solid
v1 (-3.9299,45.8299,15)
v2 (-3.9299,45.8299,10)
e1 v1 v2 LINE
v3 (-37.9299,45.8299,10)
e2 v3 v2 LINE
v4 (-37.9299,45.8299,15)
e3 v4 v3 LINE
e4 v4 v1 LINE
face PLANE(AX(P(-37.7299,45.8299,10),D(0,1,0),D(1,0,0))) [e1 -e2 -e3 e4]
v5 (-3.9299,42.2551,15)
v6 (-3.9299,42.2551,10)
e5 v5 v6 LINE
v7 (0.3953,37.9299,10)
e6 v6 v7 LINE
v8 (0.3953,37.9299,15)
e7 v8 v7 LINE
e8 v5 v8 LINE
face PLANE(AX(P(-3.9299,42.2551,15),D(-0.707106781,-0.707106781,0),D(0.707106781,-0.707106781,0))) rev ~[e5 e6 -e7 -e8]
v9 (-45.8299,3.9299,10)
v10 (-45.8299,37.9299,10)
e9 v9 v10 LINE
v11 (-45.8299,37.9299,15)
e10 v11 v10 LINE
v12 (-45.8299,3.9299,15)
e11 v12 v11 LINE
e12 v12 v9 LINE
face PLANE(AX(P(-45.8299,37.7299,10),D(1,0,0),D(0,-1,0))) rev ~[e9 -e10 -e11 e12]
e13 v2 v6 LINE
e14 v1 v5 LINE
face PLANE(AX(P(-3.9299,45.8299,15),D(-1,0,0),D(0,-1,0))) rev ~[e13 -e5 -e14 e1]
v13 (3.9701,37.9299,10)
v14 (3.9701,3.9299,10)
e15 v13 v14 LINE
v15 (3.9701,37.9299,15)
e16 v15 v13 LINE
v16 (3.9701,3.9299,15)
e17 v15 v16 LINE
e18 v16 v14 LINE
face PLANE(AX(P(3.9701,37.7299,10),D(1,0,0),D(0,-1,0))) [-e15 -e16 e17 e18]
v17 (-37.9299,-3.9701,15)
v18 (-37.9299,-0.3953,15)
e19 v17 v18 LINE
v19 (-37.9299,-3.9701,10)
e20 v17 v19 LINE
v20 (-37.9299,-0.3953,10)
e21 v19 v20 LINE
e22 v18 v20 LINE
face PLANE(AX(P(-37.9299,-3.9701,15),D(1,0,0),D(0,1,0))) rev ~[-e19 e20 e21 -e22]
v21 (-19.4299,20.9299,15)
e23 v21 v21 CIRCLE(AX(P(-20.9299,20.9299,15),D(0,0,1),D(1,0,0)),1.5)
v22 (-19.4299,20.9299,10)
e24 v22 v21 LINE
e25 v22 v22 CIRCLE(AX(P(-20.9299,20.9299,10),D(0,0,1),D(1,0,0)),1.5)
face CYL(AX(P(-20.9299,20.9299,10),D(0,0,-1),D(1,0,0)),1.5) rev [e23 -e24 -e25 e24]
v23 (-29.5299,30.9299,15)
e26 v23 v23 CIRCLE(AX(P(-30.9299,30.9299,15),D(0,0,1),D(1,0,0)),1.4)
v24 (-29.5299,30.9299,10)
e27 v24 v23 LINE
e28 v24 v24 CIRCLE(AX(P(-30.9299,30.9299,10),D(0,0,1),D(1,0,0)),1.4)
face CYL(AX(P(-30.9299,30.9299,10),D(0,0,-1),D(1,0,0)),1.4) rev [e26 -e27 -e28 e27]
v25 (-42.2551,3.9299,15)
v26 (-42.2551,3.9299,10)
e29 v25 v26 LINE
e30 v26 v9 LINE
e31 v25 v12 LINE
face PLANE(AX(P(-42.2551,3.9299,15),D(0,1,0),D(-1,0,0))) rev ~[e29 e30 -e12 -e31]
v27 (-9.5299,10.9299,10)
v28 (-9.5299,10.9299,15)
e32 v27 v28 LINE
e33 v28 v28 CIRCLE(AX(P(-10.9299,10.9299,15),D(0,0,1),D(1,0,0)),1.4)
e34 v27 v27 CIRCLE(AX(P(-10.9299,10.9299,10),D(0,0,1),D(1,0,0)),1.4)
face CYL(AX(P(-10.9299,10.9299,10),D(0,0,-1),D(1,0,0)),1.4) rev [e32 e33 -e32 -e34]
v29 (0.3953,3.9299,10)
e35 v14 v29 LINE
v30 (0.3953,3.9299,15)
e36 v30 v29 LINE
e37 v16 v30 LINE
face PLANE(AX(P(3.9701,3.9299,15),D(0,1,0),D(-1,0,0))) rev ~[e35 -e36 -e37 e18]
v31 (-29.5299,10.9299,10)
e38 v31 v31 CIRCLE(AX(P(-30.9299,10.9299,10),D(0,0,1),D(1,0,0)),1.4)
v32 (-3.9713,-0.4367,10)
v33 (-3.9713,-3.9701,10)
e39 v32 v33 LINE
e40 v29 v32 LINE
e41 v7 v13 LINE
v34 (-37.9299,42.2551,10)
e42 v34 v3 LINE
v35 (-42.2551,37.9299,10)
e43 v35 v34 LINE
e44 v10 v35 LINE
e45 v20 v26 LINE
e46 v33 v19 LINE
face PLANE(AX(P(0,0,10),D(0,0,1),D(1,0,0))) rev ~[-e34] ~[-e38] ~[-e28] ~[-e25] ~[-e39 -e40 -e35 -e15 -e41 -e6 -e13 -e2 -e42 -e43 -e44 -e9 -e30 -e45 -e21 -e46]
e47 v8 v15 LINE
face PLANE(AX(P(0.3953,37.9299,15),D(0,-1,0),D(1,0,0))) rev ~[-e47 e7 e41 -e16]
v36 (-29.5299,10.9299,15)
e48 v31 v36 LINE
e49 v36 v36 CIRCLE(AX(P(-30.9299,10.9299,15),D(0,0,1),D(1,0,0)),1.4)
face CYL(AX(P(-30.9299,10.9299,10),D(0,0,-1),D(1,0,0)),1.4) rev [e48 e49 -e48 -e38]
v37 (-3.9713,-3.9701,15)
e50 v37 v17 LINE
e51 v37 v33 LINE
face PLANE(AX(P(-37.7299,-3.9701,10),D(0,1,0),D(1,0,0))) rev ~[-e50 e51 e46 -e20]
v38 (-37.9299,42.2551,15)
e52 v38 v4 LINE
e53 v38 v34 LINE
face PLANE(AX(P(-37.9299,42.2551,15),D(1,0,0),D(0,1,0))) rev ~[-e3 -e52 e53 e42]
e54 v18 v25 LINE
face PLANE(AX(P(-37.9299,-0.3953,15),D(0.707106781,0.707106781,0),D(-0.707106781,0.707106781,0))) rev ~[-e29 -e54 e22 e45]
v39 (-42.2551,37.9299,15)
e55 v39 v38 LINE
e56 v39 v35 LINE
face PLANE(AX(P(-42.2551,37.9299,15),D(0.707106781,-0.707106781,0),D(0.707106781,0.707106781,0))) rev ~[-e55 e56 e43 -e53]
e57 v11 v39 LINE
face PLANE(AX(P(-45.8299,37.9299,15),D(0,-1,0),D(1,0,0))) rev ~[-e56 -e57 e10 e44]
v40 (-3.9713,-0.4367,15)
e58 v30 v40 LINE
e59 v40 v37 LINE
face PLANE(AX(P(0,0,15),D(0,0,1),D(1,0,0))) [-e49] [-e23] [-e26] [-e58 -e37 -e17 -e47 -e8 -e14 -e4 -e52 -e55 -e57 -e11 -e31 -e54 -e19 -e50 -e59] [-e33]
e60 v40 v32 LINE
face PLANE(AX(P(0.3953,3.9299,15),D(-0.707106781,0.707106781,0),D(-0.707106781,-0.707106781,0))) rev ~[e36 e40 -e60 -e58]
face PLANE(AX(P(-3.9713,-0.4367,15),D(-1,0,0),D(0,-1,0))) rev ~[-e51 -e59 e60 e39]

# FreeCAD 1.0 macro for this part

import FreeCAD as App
import Part
import Sketcher
from FreeCAD import Vector

doc = App.newDocument("Part")
params = doc.addObject("Spreadsheet::Sheet", "Params")
for row, (alias, value) in enumerate([
    ("sketch1_diameter", "3 mm"),
    ("sketch1_diameter2", "2.8 mm"),
    ("sketch1_width", "33.6 mm"),
    ("pad1_length", "5 mm"),
    ("sketch2_width", "0.2 mm"),
    ("pad2_length", "5 mm"),
], start=1):
    params.set(f"A{row}", alias)
    params.set(f"B{row}", "=" + value)
    params.setAlias(f"B{row}", alias)

body = doc.addObject("PartDesign::Body", "Body")

# Sketch on XY plane
sketch1 = body.newObject("Sketcher::SketchObject", "Sketch")
sketch1.AttachmentSupport = (doc.getObject("XY_Plane"), [""])
sketch1.MapMode = "FlatFace"
sketch1.AttachmentOffset = App.Placement(Vector(0, 0, 10), App.Rotation())
sketch1.addGeometry([
    Part.LineSegment(Vector(-4.171, -0.354, 0), Vector(0.312, 4.13, 0)),  # 0
    Part.LineSegment(Vector(0.312, 4.13, 0), Vector(3.97, 4.13, 0)),  # 1
    Part.LineSegment(Vector(3.97, 4.13, 0), Vector(3.97, 37.73, 0)),  # 2
    Part.LineSegment(Vector(3.97, 37.73, 0), Vector(0.312, 37.73, 0)),  # 3
    Part.LineSegment(Vector(0.312, 37.73, 0), Vector(-4.13, 42.172, 0)),  # 4
    Part.LineSegment(Vector(-4.13, 42.172, 0), Vector(-4.13, 45.83, 0)),  # 5
    Part.LineSegment(Vector(-4.13, 45.83, 0), Vector(-37.73, 45.83, 0)),  # 6
    Part.LineSegment(Vector(-37.73, 45.83, 0), Vector(-37.73, 42.172, 0)),  # 7
    Part.LineSegment(Vector(-37.73, 42.172, 0), Vector(-42.172, 37.73, 0)),  # 8
    Part.LineSegment(Vector(-42.172, 37.73, 0), Vector(-45.83, 37.73, 0)),  # 9
    Part.LineSegment(Vector(-45.83, 37.73, 0), Vector(-45.83, 4.13, 0)),  # 10
    Part.LineSegment(Vector(-45.83, 4.13, 0), Vector(-42.172, 4.13, 0)),  # 11
    Part.LineSegment(Vector(-42.172, 4.13, 0), Vector(-37.689, -0.354, 0)),  # 12
    Part.LineSegment(Vector(-37.689, -0.354, 0), Vector(-37.73, -0.354, 0)),  # 13
    Part.LineSegment(Vector(-37.73, -0.354, 0), Vector(-37.73, -3.97, 0)),  # 14
    Part.LineSegment(Vector(-37.73, -3.97, 0), Vector(-4.171, -3.97, 0)),  # 15
    Part.LineSegment(Vector(-4.171, -3.97, 0), Vector(-4.171, -0.354, 0)),  # 16
    Part.Circle(Vector(-30.93, 30.93, 0), Vector(0, 0, 1), 1.4),  # 17
    Part.Circle(Vector(-30.93, 10.93, 0), Vector(0, 0, 1), 1.4),  # 18
    Part.Circle(Vector(-10.93, 10.93, 0), Vector(0, 0, 1), 1.4),  # 19
    Part.Circle(Vector(-20.93, 20.93, 0), Vector(0, 0, 1), 1.5),  # 20
], False)
sketch1.addConstraint([
    Sketcher.Constraint("Coincident", 0, 2, 1, 1),
    Sketcher.Constraint("Coincident", 1, 2, 2, 1),
    Sketcher.Constraint("Coincident", 2, 2, 3, 1),
    Sketcher.Constraint("Coincident", 3, 2, 4, 1),
    Sketcher.Constraint("Coincident", 4, 2, 5, 1),
    Sketcher.Constraint("Coincident", 5, 2, 6, 1),
    Sketcher.Constraint("Coincident", 6, 2, 7, 1),
    Sketcher.Constraint("Coincident", 7, 2, 8, 1),
    Sketcher.Constraint("Coincident", 8, 2, 9, 1),
    Sketcher.Constraint("Coincident", 9, 2, 10, 1),
    Sketcher.Constraint("Coincident", 10, 2, 11, 1),
    Sketcher.Constraint("Coincident", 11, 2, 12, 1),
    Sketcher.Constraint("Coincident", 12, 2, 13, 1),
    Sketcher.Constraint("Coincident", 13, 2, 14, 1),
    Sketcher.Constraint("Coincident", 14, 2, 15, 1),
    Sketcher.Constraint("Coincident", 15, 2, 16, 1),
    Sketcher.Constraint("Coincident", 16, 2, 0, 1),
    Sketcher.Constraint("Horizontal", 1),
    Sketcher.Constraint("Vertical", 2),
    Sketcher.Constraint("Horizontal", 3),
    Sketcher.Constraint("Vertical", 5),
    Sketcher.Constraint("Horizontal", 6),
    Sketcher.Constraint("Vertical", 7),
    Sketcher.Constraint("Horizontal", 9),
    Sketcher.Constraint("Vertical", 10),
    Sketcher.Constraint("Horizontal", 11),
    Sketcher.Constraint("Horizontal", 13),
    Sketcher.Constraint("Vertical", 14),
    Sketcher.Constraint("Horizontal", 15),
    Sketcher.Constraint("Vertical", 16),
    Sketcher.Constraint("Equal", 17, 18),
    Sketcher.Constraint("Equal", 18, 19),
    Sketcher.Constraint("Perpendicular", 0, 4),
    Sketcher.Constraint("Perpendicular", 4, 8),
    Sketcher.Constraint("Perpendicular", 8, 12),
    Sketcher.Constraint("Horizontal", 18, 3, 19, 3),
    Sketcher.Constraint("Horizontal", 4, 2, 7, 2),
    Sketcher.Constraint("Horizontal", 3, 2, 8, 2),
    Sketcher.Constraint("Horizontal", 1, 2, 10, 2),
    Sketcher.Constraint("Horizontal", 13, 2, 16, 2),
    Sketcher.Constraint("Vertical", 17, 3, 18, 3),
    Sketcher.Constraint("Vertical", 0, 2, 3, 2),
    Sketcher.Constraint("Vertical", 8, 2, 11, 2),
    Sketcher.Constraint("Vertical", 7, 2, 13, 2),
    Sketcher.Constraint("Equal", 3, 9),
    Sketcher.Constraint("Equal", 6, 2),
    Sketcher.Constraint("Equal", 11, 5),
    Sketcher.Constraint("Equal", 4, 8),
    Sketcher.Constraint("Diameter", 20, 3.0),
    Sketcher.Constraint("Diameter", 17, 2.8),
    Sketcher.Constraint("DistanceY", 18, 3, 17, 3, 20.0),
    Sketcher.Constraint("DistanceX", 18, 3, 19, 3, 20.0),
    Sketcher.Constraint("DistanceX", 6, 2, 6, 1, 33.6),
    Sketcher.Constraint("DistanceX", 17, 3, 20, 3, 10.0),
    Sketcher.Constraint("DistanceY", 20, 3, 17, 3, 10.0),
    Sketcher.Constraint("DistanceY", 0, 2, 19, 3, 6.8),
    Sketcher.Constraint("DistanceX", 19, 3, 1, 2, 14.9),
    Sketcher.Constraint("DistanceX", 4, 2, 2, 2, 8.1),
    Sketcher.Constraint("DistanceY", 14, 2, 11, 2, 8.1),
    Sketcher.Constraint("DistanceX", 17, 3, -1, 1, 30.93),
    Sketcher.Constraint("DistanceY", -1, 1, 17, 3, 30.93),
    Sketcher.Constraint("Distance", 0, 6.341),
    Sketcher.Constraint("DistanceX", 1, 1, 1, 2, 3.6577),
])
sketch1.setExpression("Constraints[48]", "Params.sketch1_diameter")
sketch1.setExpression("Constraints[49]", "Params.sketch1_diameter2")
sketch1.setExpression("Constraints[52]", "Params.sketch1_width")
pad1 = body.newObject("PartDesign::Pad", "Pad")
pad1.Profile = sketch1
pad1.setExpression("Length", "Params.pad1_length")

# Sketch on XY plane
sketch2 = body.newObject("Sketcher::SketchObject", "Sketch001")
sketch2.AttachmentSupport = (doc.getObject("XY_Plane"), [""])
sketch2.MapMode = "FlatFace"
sketch2.AttachmentOffset = App.Placement(Vector(0, 0, 15), App.Rotation())
sketch2.addGeometry([
    Part.LineSegment(Vector(3.97, 3.93, 0), Vector(3.97, 4.13, 0)),  # 0
    Part.LineSegment(Vector(3.97, 4.13, 0), Vector(0.312, 4.13, 0)),  # 1
    Part.LineSegment(Vector(0.312, 4.13, 0), Vector(-4.171, -0.354, 0)),  # 2
    Part.LineSegment(Vector(-4.171, -0.354, 0), Vector(-4.171, -3.97, 0)),  # 3
    Part.LineSegment(Vector(-4.171, -3.97, 0), Vector(-3.971, -3.97, 0)),  # 4
    Part.LineSegment(Vector(-3.971, -3.97, 0), Vector(-3.971, -0.437, 0)),  # 5
    Part.LineSegment(Vector(-3.971, -0.437, 0), Vector(0.395, 3.93, 0)),  # 6
    Part.LineSegment(Vector(0.395, 3.93, 0), Vector(3.97, 3.93, 0)),  # 7
    Part.LineSegment(Vector(-3.93, 45.83, 0), Vector(-4.13, 45.83, 0)),  # 8
    Part.LineSegment(Vector(-4.13, 45.83, 0), Vector(-4.13, 42.172, 0)),  # 9
    Part.LineSegment(Vector(-4.13, 42.172, 0), Vector(0.312, 37.73, 0)),  # 10
    Part.LineSegment(Vector(0.312, 37.73, 0), Vector(3.97, 37.73, 0)),  # 11
    Part.LineSegment(Vector(3.97, 37.73, 0), Vector(3.97, 37.93, 0)),  # 12
    Part.LineSegment(Vector(3.97, 37.93, 0), Vector(0.395, 37.93, 0)),  # 13
    Part.LineSegment(Vector(0.395, 37.93, 0), Vector(-3.93, 42.255, 0)),  # 14
    Part.LineSegment(Vector(-3.93, 42.255, 0), Vector(-3.93, 45.83, 0)),  # 15
    Part.LineSegment(Vector(-42.172, 37.73, 0), Vector(-37.73, 42.172, 0)),  # 16
    Part.LineSegment(Vector(-37.73, 42.172, 0), Vector(-37.73, 45.83, 0)),  # 17
    Part.LineSegment(Vector(-37.73, 45.83, 0), Vector(-37.93, 45.83, 0)),  # 18
    Part.LineSegment(Vector(-37.93, 45.83, 0), Vector(-37.93, 42.255, 0)),  # 19
    Part.LineSegment(Vector(-37.93, 42.255, 0), Vector(-42.255, 37.93, 0)),  # 20
    Part.LineSegment(Vector(-42.255, 37.93, 0), Vector(-45.83, 37.93, 0)),  # 21
    Part.LineSegment(Vector(-45.83, 37.93, 0), Vector(-45.83, 37.73, 0)),  # 22
    Part.LineSegment(Vector(-45.83, 37.73, 0), Vector(-42.172, 37.73, 0)),  # 23
    Part.LineSegment(Vector(-42.172, 4.13, 0), Vector(-45.83, 4.13, 0)),  # 24
    Part.LineSegment(Vector(-45.83, 4.13, 0), Vector(-45.83, 3.93, 0)),  # 25
    Part.LineSegment(Vector(-45.83, 3.93, 0), Vector(-42.255, 3.93, 0)),  # 26
    Part.LineSegment(Vector(-42.255, 3.93, 0), Vector(-37.93, -0.395, 0)),  # 27
    Part.LineSegment(Vector(-37.93, -0.395, 0), Vector(-37.93, -3.97, 0)),  # 28
    Part.LineSegment(Vector(-37.93, -3.97, 0), Vector(-37.73, -3.97, 0)),  # 29
    Part.LineSegment(Vector(-37.73, -3.97, 0), Vector(-37.73, -0.354, 0)),  # 30
    Part.LineSegment(Vector(-37.73, -0.354, 0), Vector(-37.688, -0.354, 0)),  # 31
    Part.LineSegment(Vector(-37.688, -0.354, 0), Vector(-42.172, 4.13, 0)),  # 32
], False)
sketch2.addConstraint([
    Sketcher.Constraint("Coincident", 0, 2, 1, 1),
    Sketcher.Constraint("Coincident", 1, 2, 2, 1),
    Sketcher.Constraint("Coincident", 2, 2, 3, 1),
    Sketcher.Constraint("Coincident", 3, 2, 4, 1),
    Sketcher.Constraint("Coincident", 4, 2, 5, 1),
    Sketcher.Constraint("Coincident", 5, 2, 6, 1),
    Sketcher.Constraint("Coincident", 6, 2, 7, 1),
    Sketcher.Constraint("Coincident", 7, 2, 0, 1),
    Sketcher.Constraint("Coincident", 8, 2, 9, 1),
    Sketcher.Constraint("Coincident", 9, 2, 10, 1),
    Sketcher.Constraint("Coincident", 10, 2, 11, 1),
    Sketcher.Constraint("Coincident", 11, 2, 12, 1),
    Sketcher.Constraint("Coincident", 12, 2, 13, 1),
    Sketcher.Constraint("Coincident", 13, 2, 14, 1),
    Sketcher.Constraint("Coincident", 14, 2, 15, 1),
    Sketcher.Constraint("Coincident", 15, 2, 8, 1),
    Sketcher.Constraint("Coincident", 16, 2, 17, 1),
    Sketcher.Constraint("Coincident", 17, 2, 18, 1),
    Sketcher.Constraint("Coincident", 18, 2, 19, 1),
    Sketcher.Constraint("Coincident", 19, 2, 20, 1),
    Sketcher.Constraint("Coincident", 20, 2, 21, 1),
    Sketcher.Constraint("Coincident", 21, 2, 22, 1),
    Sketcher.Constraint("Coincident", 22, 2, 23, 1),
    Sketcher.Constraint("Coincident", 23, 2, 16, 1),
    Sketcher.Constraint("Coincident", 24, 2, 25, 1),
    Sketcher.Constraint("Coincident", 25, 2, 26, 1),
    Sketcher.Constraint("Coincident", 26, 2, 27, 1),
    Sketcher.Constraint("Coincident", 27, 2, 28, 1),
    Sketcher.Constraint("Coincident", 28, 2, 29, 1),
    Sketcher.Constraint("Coincident", 29, 2, 30, 1),
    Sketcher.Constraint("Coincident", 30, 2, 31, 1),
    Sketcher.Constraint("Coincident", 31, 2, 32, 1),
    Sketcher.Constraint("Coincident", 32, 2, 24, 1),
    Sketcher.Constraint("Vertical", 0),
    Sketcher.Constraint("Horizontal", 1),
    Sketcher.Constraint("Vertical", 3),
    Sketcher.Constraint("Horizontal", 4),
    Sketcher.Constraint("Vertical", 5),
    Sketcher.Constraint("Horizontal", 7),
    Sketcher.Constraint("Horizontal", 8),
    Sketcher.Constraint("Vertical", 9),
    Sketcher.Constraint("Horizontal", 11),
    Sketcher.Constraint("Vertical", 12),
    Sketcher.Constraint("Horizontal", 13),
    Sketcher.Constraint("Vertical", 15),
    Sketcher.Constraint("Vertical", 17),
    Sketcher.Constraint("Horizontal", 18),
    Sketcher.Constraint("Vertical", 19),
    Sketcher.Constraint("Horizontal", 21),
    Sketcher.Constraint("Vertical", 22),
    Sketcher.Constraint("Horizontal", 23),
    Sketcher.Constraint("Horizontal", 24),
    Sketcher.Constraint("Vertical", 25),
    Sketcher.Constraint("Horizontal", 26),
    Sketcher.Constraint("Vertical", 28),
    Sketcher.Constraint("Horizontal", 29),
    Sketcher.Constraint("Vertical", 30),
    Sketcher.Constraint("Horizontal", 31),
    Sketcher.Constraint("Parallel", 2, 6),
    Sketcher.Constraint("Perpendicular", 6, 10),
    Sketcher.Constraint("Parallel", 10, 14),
    Sketcher.Constraint("Perpendicular", 14, 16),
    Sketcher.Constraint("Parallel", 16, 20),
    Sketcher.Constraint("Perpendicular", 20, 27),
    Sketcher.Constraint("Parallel", 27, 32),
    Sketcher.Constraint("Horizontal", 9, 2, 16, 2),
    Sketcher.Constraint("Horizontal", 15, 2, 17, 2),
    Sketcher.Constraint("Horizontal", 14, 2, 19, 2),
    Sketcher.Constraint("Horizontal", 13, 2, 20, 2),
    Sketcher.Constraint("Horizontal", 11, 2, 22, 2),
    Sketcher.Constraint("Horizontal", 1, 2, 24, 2),
    Sketcher.Constraint("Horizontal", 7, 2, 25, 2),
    Sketcher.Constraint("Horizontal", 4, 2, 28, 2),
    Sketcher.Constraint("Horizontal", 2, 2, 30, 2),
    Sketcher.Constraint("Vertical", 1, 2, 10, 2),
    Sketcher.Constraint("Vertical", 7, 2, 11, 2),
    Sketcher.Constraint("Vertical", 6, 2, 13, 2),
    Sketcher.Constraint("Vertical", 22, 2, 24, 2),
    Sketcher.Constraint("Vertical", 20, 2, 26, 2),
    Sketcher.Constraint("Vertical", 19, 2, 27, 2),
    Sketcher.Constraint("Vertical", 17, 2, 29, 2),
    Sketcher.Constraint("Vertical", 23, 2, 32, 2),
    Sketcher.Constraint("Equal", 4, 8),
    Sketcher.Constraint("Equal", 8, 18),
    Sketcher.Constraint("Equal", 13, 21),
    Sketcher.Constraint("Equal", 11, 23),
    Sketcher.Constraint("Equal", 29, 0),
    Sketcher.Constraint("Equal", 24, 9),
    Sketcher.Constraint("Equal", 0, 12),
    Sketcher.Constraint("Equal", 19, 28),
    Sketcher.Constraint("DistanceX", 4, 1, 4, 2, 0.2),
    Sketcher.Constraint("DistanceX", 18, 2, 15, 2, 34.0),
    Sketcher.Constraint("DistanceY", 25, 2, 21, 2, 34.0),
    Sketcher.Constraint("DistanceY", 3, 2, 1, 2, 8.1),
    Sketcher.Constraint("DistanceX", -1, 1, 0, 2, 3.97),
    Sketcher.Constraint("DistanceY", -1, 1, 0, 2, 4.13),
    Sketcher.Constraint("Distance", 2, 6.341),
    Sketcher.Constraint("DistanceX", 1, 2, 1, 1, 3.6577),
    Sketcher.Constraint("DistanceX", 7, 1, 7, 2, 3.5748),
])
sketch2.setExpression("Constraints[90]", "Params.sketch2_width")
pad2 = body.newObject("PartDesign::Pad", "Pad001")
pad2.Profile = sketch2
pad2.setExpression("Length", "Params.pad2_length")
pad2.Reversed = True

doc.recompute()
